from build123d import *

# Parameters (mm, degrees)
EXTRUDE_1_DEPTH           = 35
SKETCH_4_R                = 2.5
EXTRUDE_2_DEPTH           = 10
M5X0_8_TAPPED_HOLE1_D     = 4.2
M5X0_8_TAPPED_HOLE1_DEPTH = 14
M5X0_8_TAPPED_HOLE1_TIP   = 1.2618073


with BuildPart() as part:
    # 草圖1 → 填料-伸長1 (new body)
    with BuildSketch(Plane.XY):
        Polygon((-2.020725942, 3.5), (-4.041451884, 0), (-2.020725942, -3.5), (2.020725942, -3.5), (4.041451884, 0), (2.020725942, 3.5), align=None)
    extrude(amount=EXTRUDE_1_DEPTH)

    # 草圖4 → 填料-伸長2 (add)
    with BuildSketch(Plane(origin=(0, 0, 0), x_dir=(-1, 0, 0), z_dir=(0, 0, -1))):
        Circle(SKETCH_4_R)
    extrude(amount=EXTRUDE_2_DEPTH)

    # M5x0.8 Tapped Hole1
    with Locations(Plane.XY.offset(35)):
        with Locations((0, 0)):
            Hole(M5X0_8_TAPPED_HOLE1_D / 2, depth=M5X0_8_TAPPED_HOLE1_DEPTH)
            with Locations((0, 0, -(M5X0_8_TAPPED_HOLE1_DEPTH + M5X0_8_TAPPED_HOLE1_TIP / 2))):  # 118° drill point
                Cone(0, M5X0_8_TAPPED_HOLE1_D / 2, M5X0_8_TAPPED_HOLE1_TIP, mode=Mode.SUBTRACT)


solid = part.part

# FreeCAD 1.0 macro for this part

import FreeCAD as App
import Part
import Sketcher
from FreeCAD import Vector
Q = App.Units.Quantity


def add_polygon(sketch, points):
    """Adds a closed chain of lines whose ends are joined by coincident constraints."""
    first, n = sketch.GeometryCount, len(points)
    for a, b in zip(points, points[1:] + points[:1]):
        sketch.addGeometry(Part.LineSegment(App.Vector(*a, 0), App.Vector(*b, 0)), False)
    for i in range(n):
        sketch.addConstraint(Sketcher.Constraint("Coincident", first + i, 2, first + (i + 1) % n, 1))

doc = App.newDocument("Part")
body = doc.addObject("PartDesign::Body", "Body")

# Sketch on XY plane
sketch1 = body.newObject("Sketcher::SketchObject", "Sketch")
sketch1.AttachmentSupport = (doc.getObject("XY_Plane"), [""])
sketch1.MapMode = "FlatFace"
add_polygon(sketch1, [(-2, 3.5), (-4, 0), (-2, -3.5), (2, -3.5), (4, 0), (2, 3.5)])  # lines 0-5
sketch1.addConstraint(Sketcher.Constraint("Horizontal", 2))
sketch1.addConstraint(Sketcher.Constraint("Horizontal", 5))
sketch1.addConstraint(Sketcher.Constraint("Symmetric", 0, 2, 3, 2, -1, 1))
sketch1.addConstraint(Sketcher.Constraint("Symmetric", 1, 2, 4, 2, -1, 1))
sketch1.addConstraint(Sketcher.Constraint("PointOnObject", 0, 2, -1))
sketch1.addConstraint(Sketcher.Constraint("Parallel", 0, 3))
sketch1.addConstraint(Sketcher.Constraint("Vertical", 2, 2, 4, 2))
sketch1.addConstraint(Sketcher.Constraint("Angle", 0, Q("-120 deg")))
sketch1.addConstraint(Sketcher.Constraint("DistanceY", 2, 2, 4, 2, 7.0))
sketch1.addConstraint(Sketcher.Constraint("DistanceX", 2, 1, 2, 2, 4.041452))
pad1 = body.newObject("PartDesign::Pad", "Pad")
pad1.Profile = sketch1
pad1.Length = 35

# Sketch on XY plane
sketch2 = body.newObject("Sketcher::SketchObject", "Sketch001")
sketch2.AttachmentSupport = (doc.getObject("XY_Plane"), [""])
sketch2.MapMode = "FlatFace"
sketch2.addGeometry(Part.Circle(Vector(0, 0, 0), Vector(0, 0, 1), 2.5), False)
sketch2.addConstraint(Sketcher.Constraint("Coincident", 0, 3, -1, 1))
sketch2.addConstraint(Sketcher.Constraint("Diameter", 0, 5.0))
pad2 = body.newObject("PartDesign::Pad", "Pad001")
pad2.Profile = sketch2
pad2.Length = 10
pad2.Reversed = True

# Sketch on XY plane
sketch3 = body.newObject("Sketcher::SketchObject", "Sketch002")
sketch3.AttachmentSupport = (doc.getObject("XY_Plane"), [""])
sketch3.MapMode = "FlatFace"
sketch3.AttachmentOffset = App.Placement(Vector(0, 0, 35), App.Rotation())
sketch3.addGeometry(Part.Circle(Vector(0, 0, 0), Vector(0, 0, 1), 2.1), False)
sketch3.addConstraint(Sketcher.Constraint("Coincident", 0, 3, -1, 1))
sketch3.addConstraint(Sketcher.Constraint("Diameter", 0, 4.2))
doc.recompute()
hole = body.newObject("PartDesign::Hole", "Hole")
hole.Profile = sketch3
hole.ThreadType = "None"
hole.Diameter = 4.2
hole.DepthType = "Dimension"
hole.Depth = 14
hole.DrillPoint = "Angled"
hole.DrillPointAngle = 118

doc.recompute()
